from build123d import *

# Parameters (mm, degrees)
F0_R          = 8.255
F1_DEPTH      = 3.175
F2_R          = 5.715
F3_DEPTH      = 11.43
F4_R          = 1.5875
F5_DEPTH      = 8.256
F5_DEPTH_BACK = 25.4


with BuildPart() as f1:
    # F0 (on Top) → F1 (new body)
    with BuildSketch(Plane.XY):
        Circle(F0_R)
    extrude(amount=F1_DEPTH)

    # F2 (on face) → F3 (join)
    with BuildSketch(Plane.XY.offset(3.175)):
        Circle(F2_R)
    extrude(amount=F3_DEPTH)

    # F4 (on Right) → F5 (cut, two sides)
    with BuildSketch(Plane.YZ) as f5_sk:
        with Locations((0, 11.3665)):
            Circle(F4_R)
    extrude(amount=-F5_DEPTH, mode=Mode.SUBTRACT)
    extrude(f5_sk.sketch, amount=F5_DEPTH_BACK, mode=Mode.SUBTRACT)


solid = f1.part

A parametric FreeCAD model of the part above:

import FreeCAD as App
import Part
import Sketcher
Q = App.Units.Quantity

doc = App.newDocument("Part")
params = doc.addObject("Spreadsheet::Sheet", "Params")
for row, (alias, value) in enumerate([
    ("sketch1_diameter", "0.65 in"),
    ("pad1_length", "0.125 in"),
    ("sketch2_diameter", "0.45 in"),
    ("pad2_length", "0.45 in"),
    ("sketch3_diameter", "0.125 in"),
], start=1):
    params.set(f"A{row}", alias)
    params.set(f"B{row}", "=" + value)
    params.setAlias(f"B{row}", alias)

body = doc.addObject("PartDesign::Body", "Body")

# Sketch on XY plane
sketch1 = doc.addObject("Sketcher::SketchObject", "Sketch")
body.addObject(sketch1)
sketch1.AttachmentSupport = (doc.XY_Plane, [""])
sketch1.MapMode = "FlatFace"
sketch1.addGeometry(Part.Circle(App.Vector(0, 0, 0), App.Vector(0, 0, 1), 8.255), False)
sketch1.addConstraint(Sketcher.Constraint("Coincident", 0, 3, -1, 1))
sketch1.addConstraint(Sketcher.Constraint("Diameter", 0, Q("0.65 in")))
sketch1.setExpression("Constraints[1]", "Params.sketch1_diameter")
pad1 = doc.addObject("PartDesign::Pad", "Pad")
body.addObject(pad1)
pad1.Profile = sketch1
pad1.setExpression("Length", "Params.pad1_length")

# Sketch on XY plane
sketch2 = doc.addObject("Sketcher::SketchObject", "Sketch001")
body.addObject(sketch2)
sketch2.AttachmentSupport = (doc.XY_Plane, [""])
sketch2.MapMode = "FlatFace"
sketch2.AttachmentOffset = App.Placement(App.Vector(0, 0, 0.125 * 25.4), App.Rotation())
sketch2.addGeometry(Part.Circle(App.Vector(0, 0, 0), App.Vector(0, 0, 1), 5.715), False)
sketch2.addConstraint(Sketcher.Constraint("Coincident", 0, 3, -1, 1))
sketch2.addConstraint(Sketcher.Constraint("Diameter", 0, Q("0.45 in")))
sketch2.setExpression("Constraints[1]", "Params.sketch2_diameter")
pad2 = doc.addObject("PartDesign::Pad", "Pad001")
body.addObject(pad2)
pad2.Profile = sketch2
pad2.setExpression("Length", "Params.pad2_length")

# Sketch on YZ plane
sketch3 = doc.addObject("Sketcher::SketchObject", "Sketch002")
body.addObject(sketch3)
sketch3.AttachmentSupport = (doc.YZ_Plane, [""])
sketch3.MapMode = "FlatFace"
sketch3.addGeometry(Part.Circle(App.Vector(0, 11.3665, 0), App.Vector(0, 0, 1), 1.5875), False)
sketch3.addConstraint(Sketcher.Constraint("PointOnObject", 0, 3, -2))
sketch3.addConstraint(Sketcher.Constraint("Diameter", 0, Q("0.125 in")))
sketch3.addConstraint(Sketcher.Constraint("DistanceY", -1, 1, 0, 3, Q("0.4475 in")))
sketch3.setExpression("Constraints[1]", "Params.sketch3_diameter")
pocket1 = doc.addObject("PartDesign::Pocket", "Pocket")
body.addObject(pocket1)
pocket1.Profile = sketch3
pocket1.Type = "ThroughAll"
pocket1.Midplane = True

doc.recompute()
